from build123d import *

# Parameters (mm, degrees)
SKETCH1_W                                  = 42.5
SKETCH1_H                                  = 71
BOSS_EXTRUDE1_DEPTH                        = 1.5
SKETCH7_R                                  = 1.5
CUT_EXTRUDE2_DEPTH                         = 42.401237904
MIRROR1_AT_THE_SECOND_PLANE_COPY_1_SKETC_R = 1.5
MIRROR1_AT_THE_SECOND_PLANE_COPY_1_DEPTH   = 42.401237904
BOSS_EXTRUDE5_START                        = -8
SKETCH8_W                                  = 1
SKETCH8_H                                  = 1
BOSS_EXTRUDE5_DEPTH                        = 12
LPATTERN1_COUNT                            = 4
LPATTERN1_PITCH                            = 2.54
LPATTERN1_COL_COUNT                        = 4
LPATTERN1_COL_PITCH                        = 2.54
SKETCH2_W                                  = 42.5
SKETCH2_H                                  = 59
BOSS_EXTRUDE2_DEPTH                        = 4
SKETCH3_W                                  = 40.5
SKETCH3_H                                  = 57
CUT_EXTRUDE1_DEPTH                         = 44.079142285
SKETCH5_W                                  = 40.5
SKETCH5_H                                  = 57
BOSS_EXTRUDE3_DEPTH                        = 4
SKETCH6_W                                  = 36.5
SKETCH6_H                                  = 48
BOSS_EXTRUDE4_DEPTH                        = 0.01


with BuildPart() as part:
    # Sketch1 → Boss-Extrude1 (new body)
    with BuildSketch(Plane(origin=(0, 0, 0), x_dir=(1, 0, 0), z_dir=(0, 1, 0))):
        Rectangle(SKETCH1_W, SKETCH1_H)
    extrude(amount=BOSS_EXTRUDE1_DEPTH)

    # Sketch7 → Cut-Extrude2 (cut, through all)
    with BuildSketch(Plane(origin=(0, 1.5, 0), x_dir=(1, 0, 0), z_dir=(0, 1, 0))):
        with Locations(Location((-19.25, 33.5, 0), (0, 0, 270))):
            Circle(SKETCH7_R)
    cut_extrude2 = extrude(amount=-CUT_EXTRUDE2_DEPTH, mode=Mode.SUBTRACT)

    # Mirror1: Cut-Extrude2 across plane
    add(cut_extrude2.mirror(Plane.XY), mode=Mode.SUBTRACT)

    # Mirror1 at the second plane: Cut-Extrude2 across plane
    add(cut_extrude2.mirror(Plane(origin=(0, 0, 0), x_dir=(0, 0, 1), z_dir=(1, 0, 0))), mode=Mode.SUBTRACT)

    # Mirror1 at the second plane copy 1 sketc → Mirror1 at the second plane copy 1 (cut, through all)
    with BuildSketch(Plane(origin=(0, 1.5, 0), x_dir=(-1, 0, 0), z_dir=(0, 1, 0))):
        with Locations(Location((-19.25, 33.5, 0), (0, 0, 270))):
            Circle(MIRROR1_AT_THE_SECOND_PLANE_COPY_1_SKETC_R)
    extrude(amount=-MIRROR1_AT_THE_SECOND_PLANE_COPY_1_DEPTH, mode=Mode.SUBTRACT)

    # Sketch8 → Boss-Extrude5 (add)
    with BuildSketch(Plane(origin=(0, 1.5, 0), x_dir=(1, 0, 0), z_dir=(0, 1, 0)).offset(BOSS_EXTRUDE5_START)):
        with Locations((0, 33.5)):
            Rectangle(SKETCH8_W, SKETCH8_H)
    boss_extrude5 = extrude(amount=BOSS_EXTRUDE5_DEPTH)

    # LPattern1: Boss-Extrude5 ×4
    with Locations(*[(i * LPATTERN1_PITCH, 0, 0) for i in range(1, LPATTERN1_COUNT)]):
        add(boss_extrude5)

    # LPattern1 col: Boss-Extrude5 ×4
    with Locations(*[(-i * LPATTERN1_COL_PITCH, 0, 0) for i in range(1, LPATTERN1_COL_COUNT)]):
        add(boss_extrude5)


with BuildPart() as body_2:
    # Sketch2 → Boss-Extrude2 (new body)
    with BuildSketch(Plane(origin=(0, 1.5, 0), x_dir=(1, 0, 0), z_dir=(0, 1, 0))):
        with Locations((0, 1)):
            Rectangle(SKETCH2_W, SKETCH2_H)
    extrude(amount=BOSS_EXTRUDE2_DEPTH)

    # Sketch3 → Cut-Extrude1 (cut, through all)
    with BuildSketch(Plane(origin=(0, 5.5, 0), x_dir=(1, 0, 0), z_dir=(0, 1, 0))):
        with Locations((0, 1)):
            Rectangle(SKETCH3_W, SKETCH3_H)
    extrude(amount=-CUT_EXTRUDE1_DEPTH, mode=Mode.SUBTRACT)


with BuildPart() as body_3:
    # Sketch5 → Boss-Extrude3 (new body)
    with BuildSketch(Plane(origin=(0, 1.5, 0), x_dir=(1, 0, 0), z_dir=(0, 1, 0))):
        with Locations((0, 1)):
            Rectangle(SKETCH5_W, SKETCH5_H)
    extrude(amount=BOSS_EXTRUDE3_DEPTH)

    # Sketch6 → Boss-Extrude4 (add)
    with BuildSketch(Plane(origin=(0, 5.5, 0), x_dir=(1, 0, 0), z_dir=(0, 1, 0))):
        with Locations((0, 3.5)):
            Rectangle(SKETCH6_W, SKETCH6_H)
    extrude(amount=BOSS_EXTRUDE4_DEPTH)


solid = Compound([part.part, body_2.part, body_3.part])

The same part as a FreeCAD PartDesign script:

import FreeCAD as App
import Part
import Sketcher
Q = App.Units.Quantity

doc = App.newDocument("Part")
body = doc.addObject("PartDesign::Body", "Body")

sketch1 = body.newObject("Sketcher::SketchObject", "Sketch")
sketch1.AttachmentSupport = (doc.getObject("XZ_Plane"), [""])
sketch1.MapMode = "FlatFace"
sketch1.addGeometry(Part.LineSegment(App.Vector(-21, -36, 0), App.Vector(-21, 36, 0)), False)
sketch1.addGeometry(Part.LineSegment(App.Vector(-21, 36, 0), App.Vector(21, 36, 0)), False)
sketch1.addGeometry(Part.LineSegment(App.Vector(21, 36, 0), App.Vector(21, -36, 0)), False)
sketch1.addGeometry(Part.LineSegment(App.Vector(21, -36, 0), App.Vector(-21, -36, 0)), False)
sketch1.addConstraint(Sketcher.Constraint("Coincident", 0, 2, 1, 1))
sketch1.addConstraint(Sketcher.Constraint("Coincident", 1, 2, 2, 1))
sketch1.addConstraint(Sketcher.Constraint("Coincident", 2, 2, 3, 1))
sketch1.addConstraint(Sketcher.Constraint("Coincident", 3, 2, 0, 1))
sketch1.addConstraint(Sketcher.Constraint("Vertical", 0))
sketch1.addConstraint(Sketcher.Constraint("Horizontal", 1))
sketch1.addConstraint(Sketcher.Constraint("Vertical", 2))
sketch1.addConstraint(Sketcher.Constraint("Horizontal", 3))
sketch1.addConstraint(Sketcher.Constraint("Symmetric", 0, 2, 2, 2, -1, 1))
sketch1.addConstraint(Sketcher.Constraint("DistanceY", 0, 1, 0, 2, Q("71 mm")))
sketch1.addConstraint(Sketcher.Constraint("DistanceX", 1, 1, 1, 2, Q("42.5 mm")))
pad1 = body.newObject("PartDesign::Pad", "Pad")
pad1.Profile = sketch1
pad1.Length = 1.5
pad1.Reversed = True

sketch2 = body.newObject("Sketcher::SketchObject", "Sketch001")
sketch2.AttachmentSupport = (doc.getObject("XZ_Plane"), [""])
sketch2.MapMode = "FlatFace"
sketch2.AttachmentOffset = App.Placement(App.Vector(0, 0, -1.5), App.Rotation())
sketch2.addGeometry(Part.Circle(App.Vector(-19.2, -33.5, 0), App.Vector(0, 0, 1), 1.5), False)
sketch2.addConstraint(Sketcher.Constraint("Diameter", 0, Q("3 mm")))
sketch2.addConstraint(Sketcher.Constraint("DistanceY", 0, 3, -1, 1, Q("33.5 mm")))
sketch2.addConstraint(Sketcher.Constraint("DistanceX", 0, 3, -1, 1, Q("19.25 mm")))
pocket1 = body.newObject("PartDesign::Pocket", "Pocket")
pocket1.Profile = sketch2
pocket1.Type = "ThroughAll"
pocket1.Reversed = True
doc.recompute()

mirrored = body.newObject("PartDesign::Mirrored", "Mirrored")
mirrored.Originals = [pocket1]
mirrored.MirrorPlane = (doc.getObject("XY_Plane"), [""])
body.Tip = mirrored
doc.recompute()

mirrored2 = body.newObject("PartDesign::Mirrored", "Mirrored001")
mirrored2.Originals = [pocket1]
mirrored2.MirrorPlane = (doc.getObject("YZ_Plane"), [""])
body.Tip = mirrored2

sketch3 = body.newObject("Sketcher::SketchObject", "Sketch002")
sketch3.AttachmentSupport = (doc.getObject("XZ_Plane"), [""])
sketch3.MapMode = "FlatFace"
sketch3.AttachmentOffset = App.Placement(App.Vector(0, 0, -1.5), App.Rotation())
sketch3.addGeometry(Part.Circle(App.Vector(19.2, 33.5, 0), App.Vector(0, 0, 1), 1.5), False)
sketch3.addConstraint(Sketcher.Constraint("Diameter", 0, Q("3 mm")))
sketch3.addConstraint(Sketcher.Constraint("DistanceY", -1, 1, 0, 3, Q("33.5 mm")))
sketch3.addConstraint(Sketcher.Constraint("DistanceX", -1, 1, 0, 3, Q("19.25 mm")))
pocket2 = body.newObject("PartDesign::Pocket", "Pocket001")
pocket2.Profile = sketch3
pocket2.Type = "ThroughAll"
pocket2.Reversed = True

sketch4 = body.newObject("Sketcher::SketchObject", "Sketch003")
sketch4.AttachmentSupport = (doc.getObject("XZ_Plane"), [""])
sketch4.MapMode = "FlatFace"
sketch4.AttachmentOffset = App.Placement(App.Vector(0, 0, 6.5), App.Rotation())
sketch4.addGeometry(Part.LineSegment(App.Vector(-0.5, -34, 0), App.Vector(-0.5, -33, 0)), False)
sketch4.addGeometry(Part.LineSegment(App.Vector(-0.5, -33, 0), App.Vector(0.5, -33, 0)), False)
sketch4.addGeometry(Part.LineSegment(App.Vector(0.5, -33, 0), App.Vector(0.5, -34, 0)), False)
sketch4.addGeometry(Part.LineSegment(App.Vector(0.5, -34, 0), App.Vector(-0.5, -34, 0)), False)
sketch4.addConstraint(Sketcher.Constraint("Coincident", 0, 2, 1, 1))
sketch4.addConstraint(Sketcher.Constraint("Coincident", 1, 2, 2, 1))
sketch4.addConstraint(Sketcher.Constraint("Coincident", 2, 2, 3, 1))
sketch4.addConstraint(Sketcher.Constraint("Coincident", 3, 2, 0, 1))
sketch4.addConstraint(Sketcher.Constraint("Vertical", 0))
sketch4.addConstraint(Sketcher.Constraint("Horizontal", 1))
sketch4.addConstraint(Sketcher.Constraint("Vertical", 2))
sketch4.addConstraint(Sketcher.Constraint("Horizontal", 3))
sketch4.addConstraint(Sketcher.Constraint("Equal", 3, 0))
sketch4.addConstraint(Sketcher.Constraint("DistanceX", 1, 1, 1, 2, Q("1 mm")))
sketch4.addConstraint(Sketcher.Constraint("DistanceY", 0, 2, -1, 1, Q("33 mm")))
sketch4.addConstraint(Sketcher.Constraint("DistanceX", 0, 2, -1, 1, Q("0.5 mm")))
pad2 = body.newObject("PartDesign::Pad", "Pad001")
pad2.Profile = sketch4
pad2.Length = 12
pad2.Reversed = True
doc.recompute()

linearpattern = body.newObject("PartDesign::LinearPattern", "LinearPattern")
linearpattern.Originals = [pad2]
linearpattern.Direction = (doc.getObject("X_Axis"), [""])
linearpattern.Mode = "offset"
linearpattern.Offset = 2.54
linearpattern.Occurrences = 4
body.Tip = linearpattern
doc.recompute()

linearpattern2 = body.newObject("PartDesign::LinearPattern", "LinearPattern001")
linearpattern2.Originals = [pad2]
linearpattern2.Direction = (doc.getObject("X_Axis"), [""])
linearpattern2.Mode = "offset"
linearpattern2.Offset = 2.54
linearpattern2.Occurrences = 4
linearpattern2.Reversed = True
body.Tip = linearpattern2
body2 = doc.addObject("PartDesign::Body", "Body001")

sketch5 = body2.newObject("Sketcher::SketchObject", "Sketch004")
sketch5.AttachmentSupport = (doc.getObject("XZ_Plane001"), [""])
sketch5.MapMode = "FlatFace"
sketch5.AttachmentOffset = App.Placement(App.Vector(0, 0, -1.5), App.Rotation())
sketch5.addGeometry(Part.LineSegment(App.Vector(-21, -30, 0), App.Vector(-21, 28, 0)), False)
sketch5.addGeometry(Part.LineSegment(App.Vector(-21, 28, 0), App.Vector(21, 28, 0)), False)
sketch5.addGeometry(Part.LineSegment(App.Vector(21, 28, 0), App.Vector(21, -30, 0)), False)
sketch5.addGeometry(Part.LineSegment(App.Vector(21, -30, 0), App.Vector(-21, -30, 0)), False)
sketch5.addConstraint(Sketcher.Constraint("Coincident", 0, 2, 1, 1))
sketch5.addConstraint(Sketcher.Constraint("Coincident", 1, 2, 2, 1))
sketch5.addConstraint(Sketcher.Constraint("Coincident", 2, 2, 3, 1))
sketch5.addConstraint(Sketcher.Constraint("Coincident", 3, 2, 0, 1))
sketch5.addConstraint(Sketcher.Constraint("Vertical", 0))
sketch5.addConstraint(Sketcher.Constraint("Horizontal", 1))
sketch5.addConstraint(Sketcher.Constraint("Vertical", 2))
sketch5.addConstraint(Sketcher.Constraint("Horizontal", 3))
sketch5.addConstraint(Sketcher.Constraint("DistanceY", 0, 1, 0, 2, Q("59 mm")))
sketch5.addConstraint(Sketcher.Constraint("DistanceX", 1, 1, 1, 2, Q("42.5 mm")))
sketch5.addConstraint(Sketcher.Constraint("DistanceY", -1, 1, 0, 2, Q("28.5 mm")))
sketch5.addConstraint(Sketcher.Constraint("DistanceX", 0, 2, -1, 1, Q("21.25 mm")))
pad3 = body2.newObject("PartDesign::Pad", "Pad002")
pad3.Profile = sketch5
pad3.Length = 4
pad3.Reversed = True

sketch6 = body2.newObject("Sketcher::SketchObject", "Sketch005")
sketch6.AttachmentSupport = (doc.getObject("XZ_Plane001"), [""])
sketch6.MapMode = "FlatFace"
sketch6.AttachmentOffset = App.Placement(App.Vector(0, 0, -5.5), App.Rotation())
sketch6.addGeometry(Part.LineSegment(App.Vector(-20, -30, 0), App.Vector(-20, 28, 0)), False)
sketch6.addGeometry(Part.LineSegment(App.Vector(-20, 28, 0), App.Vector(20, 28, 0)), False)
sketch6.addGeometry(Part.LineSegment(App.Vector(20, 28, 0), App.Vector(20, -30, 0)), False)
sketch6.addGeometry(Part.LineSegment(App.Vector(20, -30, 0), App.Vector(-20, -30, 0)), False)
sketch6.addConstraint(Sketcher.Constraint("Coincident", 0, 2, 1, 1))
sketch6.addConstraint(Sketcher.Constraint("Coincident", 1, 2, 2, 1))
sketch6.addConstraint(Sketcher.Constraint("Coincident", 2, 2, 3, 1))
sketch6.addConstraint(Sketcher.Constraint("Coincident", 3, 2, 0, 1))
sketch6.addConstraint(Sketcher.Constraint("Vertical", 0))
sketch6.addConstraint(Sketcher.Constraint("Horizontal", 1))
sketch6.addConstraint(Sketcher.Constraint("Vertical", 2))
sketch6.addConstraint(Sketcher.Constraint("Horizontal", 3))
sketch6.addConstraint(Sketcher.Constraint("DistanceY", 0, 1, 0, 2, Q("57 mm")))
sketch6.addConstraint(Sketcher.Constraint("DistanceX", 1, 1, 1, 2, Q("40.5 mm")))
sketch6.addConstraint(Sketcher.Constraint("DistanceY", -1, 1, 0, 2, Q("27.5 mm")))
sketch6.addConstraint(Sketcher.Constraint("DistanceX", 0, 2, -1, 1, Q("20.25 mm")))
pocket3 = body2.newObject("PartDesign::Pocket", "Pocket002")
pocket3.Profile = sketch6
pocket3.Type = "ThroughAll"
pocket3.Reversed = True
body3 = doc.addObject("PartDesign::Body", "Body002")

sketch7 = body3.newObject("Sketcher::SketchObject", "Sketch006")
sketch7.AttachmentSupport = (doc.getObject("XZ_Plane002"), [""])
sketch7.MapMode = "FlatFace"
sketch7.AttachmentOffset = App.Placement(App.Vector(0, 0, -1.5), App.Rotation())
sketch7.addGeometry(Part.LineSegment(App.Vector(-20, -30, 0), App.Vector(-20, 28, 0)), False)
sketch7.addGeometry(Part.LineSegment(App.Vector(-20, 28, 0), App.Vector(20, 28, 0)), False)
sketch7.addGeometry(Part.LineSegment(App.Vector(20, 28, 0), App.Vector(20, -30, 0)), False)
sketch7.addGeometry(Part.LineSegment(App.Vector(20, -30, 0), App.Vector(-20, -30, 0)), False)
sketch7.addConstraint(Sketcher.Constraint("Coincident", 0, 2, 1, 1))
sketch7.addConstraint(Sketcher.Constraint("Coincident", 1, 2, 2, 1))
sketch7.addConstraint(Sketcher.Constraint("Coincident", 2, 2, 3, 1))
sketch7.addConstraint(Sketcher.Constraint("Coincident", 3, 2, 0, 1))
sketch7.addConstraint(Sketcher.Constraint("Vertical", 0))
sketch7.addConstraint(Sketcher.Constraint("Horizontal", 1))
sketch7.addConstraint(Sketcher.Constraint("Vertical", 2))
sketch7.addConstraint(Sketcher.Constraint("Horizontal", 3))
sketch7.addConstraint(Sketcher.Constraint("DistanceY", 0, 1, 0, 2, Q("57 mm")))
sketch7.addConstraint(Sketcher.Constraint("DistanceX", 1, 1, 1, 2, Q("40.5 mm")))
sketch7.addConstraint(Sketcher.Constraint("DistanceY", -1, 1, 0, 2, Q("27.5 mm")))
sketch7.addConstraint(Sketcher.Constraint("DistanceX", 0, 2, -1, 1, Q("20.25 mm")))
pad4 = body3.newObject("PartDesign::Pad", "Pad003")
pad4.Profile = sketch7
pad4.Length = 4
pad4.Reversed = True

sketch8 = body3.newObject("Sketcher::SketchObject", "Sketch007")
sketch8.AttachmentSupport = (doc.getObject("XZ_Plane002"), [""])
sketch8.MapMode = "FlatFace"
sketch8.AttachmentOffset = App.Placement(App.Vector(0, 0, -5.5), App.Rotation())
sketch8.addGeometry(Part.LineSegment(App.Vector(-18, -28, 0), App.Vector(-18, 20, 0)), False)
sketch8.addGeometry(Part.LineSegment(App.Vector(-18, 20, 0), App.Vector(18, 20, 0)), False)
sketch8.addGeometry(Part.LineSegment(App.Vector(18, 20, 0), App.Vector(18, -28, 0)), False)
sketch8.addGeometry(Part.LineSegment(App.Vector(18, -28, 0), App.Vector(-18, -28, 0)), False)
sketch8.addConstraint(Sketcher.Constraint("Coincident", 0, 2, 1, 1))
sketch8.addConstraint(Sketcher.Constraint("Coincident", 1, 2, 2, 1))
sketch8.addConstraint(Sketcher.Constraint("Coincident", 2, 2, 3, 1))
sketch8.addConstraint(Sketcher.Constraint("Coincident", 3, 2, 0, 1))
sketch8.addConstraint(Sketcher.Constraint("Vertical", 0))
sketch8.addConstraint(Sketcher.Constraint("Horizontal", 1))
sketch8.addConstraint(Sketcher.Constraint("Vertical", 2))
sketch8.addConstraint(Sketcher.Constraint("Horizontal", 3))
sketch8.addConstraint(Sketcher.Constraint("DistanceY", 0, 1, 0, 2, Q("48 mm")))
sketch8.addConstraint(Sketcher.Constraint("DistanceX", 1, 1, 1, 2, Q("36.5 mm")))
sketch8.addConstraint(Sketcher.Constraint("DistanceY", -1, 1, 0, 2, Q("20.5 mm")))
sketch8.addConstraint(Sketcher.Constraint("DistanceX", 0, 2, -1, 1, Q("18.25 mm")))
pad5 = body3.newObject("PartDesign::Pad", "Pad004")
pad5.Profile = sketch8
pad5.Length = 0.01
pad5.Reversed = True

doc.recompute()
